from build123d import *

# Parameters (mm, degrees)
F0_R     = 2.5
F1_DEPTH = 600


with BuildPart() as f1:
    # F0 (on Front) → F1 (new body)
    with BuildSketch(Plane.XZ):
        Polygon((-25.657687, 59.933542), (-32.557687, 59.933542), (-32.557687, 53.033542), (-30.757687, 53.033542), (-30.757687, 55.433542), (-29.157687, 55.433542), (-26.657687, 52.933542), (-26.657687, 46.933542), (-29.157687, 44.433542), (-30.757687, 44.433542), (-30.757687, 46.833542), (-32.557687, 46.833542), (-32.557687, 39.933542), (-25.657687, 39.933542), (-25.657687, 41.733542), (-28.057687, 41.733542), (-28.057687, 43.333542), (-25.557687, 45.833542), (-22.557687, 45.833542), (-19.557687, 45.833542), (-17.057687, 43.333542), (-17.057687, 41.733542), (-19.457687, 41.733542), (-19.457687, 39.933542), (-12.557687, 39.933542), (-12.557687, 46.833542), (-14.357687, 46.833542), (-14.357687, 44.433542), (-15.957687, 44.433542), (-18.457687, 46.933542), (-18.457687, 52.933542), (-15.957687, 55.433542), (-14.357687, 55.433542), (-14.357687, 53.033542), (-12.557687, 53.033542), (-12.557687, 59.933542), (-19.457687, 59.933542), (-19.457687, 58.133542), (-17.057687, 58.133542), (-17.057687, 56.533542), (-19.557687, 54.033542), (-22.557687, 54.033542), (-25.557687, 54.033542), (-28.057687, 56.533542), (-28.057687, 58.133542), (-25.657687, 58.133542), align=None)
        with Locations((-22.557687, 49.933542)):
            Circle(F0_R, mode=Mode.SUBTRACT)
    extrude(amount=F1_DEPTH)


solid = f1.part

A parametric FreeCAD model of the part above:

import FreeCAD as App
import Part
import Sketcher

V = App.Vector
Q = App.Units.Quantity

doc = App.newDocument("Part")
body = doc.addObject("PartDesign::Body", "Body")

# Sketch on XZ plane
sketch1 = doc.addObject("Sketcher::SketchObject", "Sketch")
body.addObject(sketch1)
sketch1.AttachmentSupport = (doc.XZ_Plane, [""])
sketch1.MapMode = "FlatFace"
sketch1.addGeometry([
    Part.LineSegment(V(-25.7, 59.9, 0), V(-32.6, 59.9, 0)),  # 0
    Part.LineSegment(V(-32.6, 59.9, 0), V(-32.6, 53, 0)),  # 1
    Part.LineSegment(V(-32.6, 53, 0), V(-30.8, 53, 0)),  # 2
    Part.LineSegment(V(-30.8, 53, 0), V(-30.8, 55.4, 0)),  # 3
    Part.LineSegment(V(-30.8, 55.4, 0), V(-29.2, 55.4, 0)),  # 4
    Part.LineSegment(V(-29.2, 55.4, 0), V(-26.7, 52.9, 0)),  # 5
    Part.LineSegment(V(-26.7, 52.9, 0), V(-26.7, 46.9, 0)),  # 6
    Part.LineSegment(V(-26.7, 46.9, 0), V(-29.2, 44.4, 0)),  # 7
    Part.LineSegment(V(-29.2, 44.4, 0), V(-30.8, 44.4, 0)),  # 8
    Part.LineSegment(V(-30.8, 44.4, 0), V(-30.8, 46.8, 0)),  # 9
    Part.LineSegment(V(-30.8, 46.8, 0), V(-32.6, 46.8, 0)),  # 10
    Part.LineSegment(V(-32.6, 46.8, 0), V(-32.6, 39.9, 0)),  # 11
    Part.LineSegment(V(-32.6, 39.9, 0), V(-25.7, 39.9, 0)),  # 12
    Part.LineSegment(V(-25.7, 39.9, 0), V(-25.7, 41.7, 0)),  # 13
    Part.LineSegment(V(-25.7, 41.7, 0), V(-28.1, 41.7, 0)),  # 14
    Part.LineSegment(V(-28.1, 41.7, 0), V(-28.1, 43.3, 0)),  # 15
    Part.LineSegment(V(-28.1, 43.3, 0), V(-25.6, 45.8, 0)),  # 16
    Part.LineSegment(V(-25.6, 45.8, 0), V(-19.6, 45.8, 0)),  # 17
    Part.LineSegment(V(-19.6, 45.8, 0), V(-17.1, 43.3, 0)),  # 18
    Part.LineSegment(V(-17.1, 43.3, 0), V(-17.1, 41.7, 0)),  # 19
    Part.LineSegment(V(-17.1, 41.7, 0), V(-19.5, 41.7, 0)),  # 20
    Part.LineSegment(V(-19.5, 41.7, 0), V(-19.5, 39.9, 0)),  # 21
    Part.LineSegment(V(-19.5, 39.9, 0), V(-12.6, 39.9, 0)),  # 22
    Part.LineSegment(V(-12.6, 39.9, 0), V(-12.6, 46.8, 0)),  # 23
    Part.LineSegment(V(-12.6, 46.8, 0), V(-14.4, 46.8, 0)),  # 24
    Part.LineSegment(V(-14.4, 46.8, 0), V(-14.4, 44.4, 0)),  # 25
    Part.LineSegment(V(-14.4, 44.4, 0), V(-16, 44.4, 0)),  # 26
    Part.LineSegment(V(-16, 44.4, 0), V(-18.5, 46.9, 0)),  # 27
    Part.LineSegment(V(-18.5, 46.9, 0), V(-18.5, 52.9, 0)),  # 28
    Part.LineSegment(V(-18.5, 52.9, 0), V(-16, 55.4, 0)),  # 29
    Part.LineSegment(V(-16, 55.4, 0), V(-14.4, 55.4, 0)),  # 30
    Part.LineSegment(V(-14.4, 55.4, 0), V(-14.4, 53, 0)),  # 31
    Part.LineSegment(V(-14.4, 53, 0), V(-12.6, 53, 0)),  # 32
    Part.LineSegment(V(-12.6, 53, 0), V(-12.6, 59.9, 0)),  # 33
    Part.LineSegment(V(-12.6, 59.9, 0), V(-19.5, 59.9, 0)),  # 34
    Part.LineSegment(V(-19.5, 59.9, 0), V(-19.5, 58.1, 0)),  # 35
    Part.LineSegment(V(-19.5, 58.1, 0), V(-17.1, 58.1, 0)),  # 36
    Part.LineSegment(V(-17.1, 58.1, 0), V(-17.1, 56.5, 0)),  # 37
    Part.LineSegment(V(-17.1, 56.5, 0), V(-19.6, 54, 0)),  # 38
    Part.LineSegment(V(-19.6, 54, 0), V(-25.6, 54, 0)),  # 39
    Part.LineSegment(V(-25.6, 54, 0), V(-28.1, 56.5, 0)),  # 40
    Part.LineSegment(V(-28.1, 56.5, 0), V(-28.1, 58.1, 0)),  # 41
    Part.LineSegment(V(-28.1, 58.1, 0), V(-25.7, 58.1, 0)),  # 42
    Part.LineSegment(V(-25.7, 58.1, 0), V(-25.7, 59.9, 0)),  # 43
    Part.Circle(V(-22.6, 49.9, 0), V(0, 0, 1), 2.5),  # 44
], False)
sketch1.addConstraint([
    Sketcher.Constraint("Coincident", 0, 2, 1, 1),
    Sketcher.Constraint("Coincident", 1, 2, 2, 1),
    Sketcher.Constraint("Coincident", 2, 2, 3, 1),
    Sketcher.Constraint("Coincident", 3, 2, 4, 1),
    Sketcher.Constraint("Coincident", 4, 2, 5, 1),
    Sketcher.Constraint("Coincident", 5, 2, 6, 1),
    Sketcher.Constraint("Coincident", 6, 2, 7, 1),
    Sketcher.Constraint("Coincident", 7, 2, 8, 1),
    Sketcher.Constraint("Coincident", 8, 2, 9, 1),
    Sketcher.Constraint("Coincident", 9, 2, 10, 1),
    Sketcher.Constraint("Coincident", 10, 2, 11, 1),
    Sketcher.Constraint("Coincident", 11, 2, 12, 1),
    Sketcher.Constraint("Coincident", 12, 2, 13, 1),
    Sketcher.Constraint("Coincident", 13, 2, 14, 1),
    Sketcher.Constraint("Coincident", 14, 2, 15, 1),
    Sketcher.Constraint("Coincident", 15, 2, 16, 1),
    Sketcher.Constraint("Coincident", 16, 2, 17, 1),
    Sketcher.Constraint("Coincident", 17, 2, 18, 1),
    Sketcher.Constraint("Coincident", 18, 2, 19, 1),
    Sketcher.Constraint("Coincident", 19, 2, 20, 1),
    Sketcher.Constraint("Coincident", 20, 2, 21, 1),
    Sketcher.Constraint("Coincident", 21, 2, 22, 1),
    Sketcher.Constraint("Coincident", 22, 2, 23, 1),
    Sketcher.Constraint("Coincident", 23, 2, 24, 1),
    Sketcher.Constraint("Coincident", 24, 2, 25, 1),
    Sketcher.Constraint("Coincident", 25, 2, 26, 1),
    Sketcher.Constraint("Coincident", 26, 2, 27, 1),
    Sketcher.Constraint("Coincident", 27, 2, 28, 1),
    Sketcher.Constraint("Coincident", 28, 2, 29, 1),
    Sketcher.Constraint("Coincident", 29, 2, 30, 1),
    Sketcher.Constraint("Coincident", 30, 2, 31, 1),
    Sketcher.Constraint("Coincident", 31, 2, 32, 1),
    Sketcher.Constraint("Coincident", 32, 2, 33, 1),
    Sketcher.Constraint("Coincident", 33, 2, 34, 1),
    Sketcher.Constraint("Coincident", 34, 2, 35, 1),
    Sketcher.Constraint("Coincident", 35, 2, 36, 1),
    Sketcher.Constraint("Coincident", 36, 2, 37, 1),
    Sketcher.Constraint("Coincident", 37, 2, 38, 1),
    Sketcher.Constraint("Coincident", 38, 2, 39, 1),
    Sketcher.Constraint("Coincident", 39, 2, 40, 1),
    Sketcher.Constraint("Coincident", 40, 2, 41, 1),
    Sketcher.Constraint("Coincident", 41, 2, 42, 1),
    Sketcher.Constraint("Coincident", 42, 2, 43, 1),
    Sketcher.Constraint("Coincident", 43, 2, 0, 1),
    Sketcher.Constraint("Horizontal", 0),
    Sketcher.Constraint("Vertical", 1),
    Sketcher.Constraint("Horizontal", 2),
    Sketcher.Constraint("Vertical", 3),
    Sketcher.Constraint("Horizontal", 4),
    Sketcher.Constraint("Vertical", 6),
    Sketcher.Constraint("Horizontal", 8),
    Sketcher.Constraint("Vertical", 9),
    Sketcher.Constraint("Horizontal", 10),
    Sketcher.Constraint("Vertical", 11),
    Sketcher.Constraint("Horizontal", 12),
    Sketcher.Constraint("Vertical", 13),
    Sketcher.Constraint("Horizontal", 14),
    Sketcher.Constraint("Vertical", 15),
    Sketcher.Constraint("Horizontal", 17),
    Sketcher.Constraint("Vertical", 19),
    Sketcher.Constraint("Horizontal", 20),
    Sketcher.Constraint("Vertical", 21),
    Sketcher.Constraint("Horizontal", 22),
    Sketcher.Constraint("Vertical", 23),
    Sketcher.Constraint("Horizontal", 24),
    Sketcher.Constraint("Vertical", 25),
    Sketcher.Constraint("Horizontal", 26),
    Sketcher.Constraint("Vertical", 28),
    Sketcher.Constraint("Horizontal", 30),
    Sketcher.Constraint("Vertical", 31),
    Sketcher.Constraint("Horizontal", 32),
    Sketcher.Constraint("Vertical", 33),
    Sketcher.Constraint("Horizontal", 34),
    Sketcher.Constraint("Vertical", 35),
    Sketcher.Constraint("Horizontal", 36),
    Sketcher.Constraint("Vertical", 37),
    Sketcher.Constraint("Horizontal", 39),
    Sketcher.Constraint("Vertical", 41),
    Sketcher.Constraint("Horizontal", 42),
    Sketcher.Constraint("Vertical", 43),
    Sketcher.Constraint("Perpendicular", 5, 7),
    Sketcher.Constraint("Parallel", 7, 16),
    Sketcher.Constraint("Perpendicular", 16, 18),
    Sketcher.Constraint("Parallel", 18, 27),
    Sketcher.Constraint("Perpendicular", 27, 29),
    Sketcher.Constraint("Parallel", 29, 38),
    Sketcher.Constraint("Perpendicular", 38, 40),
    Sketcher.Constraint("Horizontal", 15, 2, 18, 2),
    Sketcher.Constraint("Horizontal", 14, 2, 19, 2),
    Sketcher.Constraint("Horizontal", 12, 2, 21, 2),
    Sketcher.Constraint("Horizontal", 10, 2, 23, 2),
    Sketcher.Constraint("Horizontal", 8, 2, 25, 2),
    Sketcher.Constraint("Horizontal", 6, 2, 27, 2),
    Sketcher.Constraint("Horizontal", 5, 2, 28, 2),
    Sketcher.Constraint("Horizontal", 4, 2, 29, 2),
    Sketcher.Constraint("Horizontal", 2, 2, 31, 2),
    Sketcher.Constraint("Horizontal", 0, 2, 33, 2),
    Sketcher.Constraint("Horizontal", 37, 2, 40, 2),
    Sketcher.Constraint("Horizontal", 36, 2, 41, 2),
    Sketcher.Constraint("Vertical", 4, 2, 7, 2),
    Sketcher.Constraint("Vertical", 3, 2, 8, 2),
    Sketcher.Constraint("Vertical", 1, 2, 10, 2),
    Sketcher.Constraint("Vertical", 26, 2, 29, 2),
    Sketcher.Constraint("Vertical", 25, 2, 30, 2),
    Sketcher.Constraint("Vertical", 23, 2, 32, 2),
    Sketcher.Constraint("Vertical", 21, 2, 34, 2),
    Sketcher.Constraint("Vertical", 19, 2, 36, 2),
    Sketcher.Constraint("Vertical", 17, 2, 38, 2),
    Sketcher.Constraint("Vertical", 16, 2, 39, 2),
    Sketcher.Constraint("Vertical", 13, 2, 42, 2),
    Sketcher.Constraint("Equal", 14, 20),
    Sketcher.Constraint("Equal", 12, 22),
    Sketcher.Constraint("Equal", 10, 24),
    Sketcher.Constraint("Equal", 8, 26),
    Sketcher.Constraint("Equal", 34, 1),
    Sketcher.Constraint("Equal", 42, 3),
    Sketcher.Constraint("Equal", 39, 6),
    Sketcher.Constraint("Equal", 3, 9),
    Sketcher.Constraint("Equal", 1, 11),
    Sketcher.Constraint("Equal", 32, 13),
    Sketcher.Constraint("Equal", 30, 15),
    Sketcher.Constraint("Equal", 21, 35),
    Sketcher.Constraint("Equal", 19, 37),
    Sketcher.Constraint("Equal", 7, 16),
    Sketcher.Constraint("Diameter", 44, Q("5 mm")),
    Sketcher.Constraint("DistanceX", 17, 1, 17, 2, Q("6 mm")),
    Sketcher.Constraint("DistanceX", 0, 2, 0, 1, Q("6.9 mm")),
    Sketcher.Constraint("DistanceX", 2, 1, 2, 2, Q("1.8 mm")),
    Sketcher.Constraint("DistanceX", 4, 1, 4, 2, Q("1.6 mm")),
    Sketcher.Constraint("DistanceX", 14, 2, 14, 1, Q("2.4 mm")),
    Sketcher.Constraint("DistanceX", 0, 2, 44, 3, Q("10 mm")),
    Sketcher.Constraint("DistanceY", 44, 3, 0, 2, Q("10 mm")),
    Sketcher.Constraint("DistanceY", 44, 3, 5, 2, Q("3 mm")),
    Sketcher.Constraint("DistanceY", -1, 1, 1, 2, Q("53.033542 mm")),
    Sketcher.Constraint("DistanceX", 44, 3, -1, 1, Q("22.557687 mm")),
])
pad1 = doc.addObject("PartDesign::Pad", "Pad")
body.addObject(pad1)
pad1.Profile = sketch1
pad1.Length = 600

doc.recompute()
